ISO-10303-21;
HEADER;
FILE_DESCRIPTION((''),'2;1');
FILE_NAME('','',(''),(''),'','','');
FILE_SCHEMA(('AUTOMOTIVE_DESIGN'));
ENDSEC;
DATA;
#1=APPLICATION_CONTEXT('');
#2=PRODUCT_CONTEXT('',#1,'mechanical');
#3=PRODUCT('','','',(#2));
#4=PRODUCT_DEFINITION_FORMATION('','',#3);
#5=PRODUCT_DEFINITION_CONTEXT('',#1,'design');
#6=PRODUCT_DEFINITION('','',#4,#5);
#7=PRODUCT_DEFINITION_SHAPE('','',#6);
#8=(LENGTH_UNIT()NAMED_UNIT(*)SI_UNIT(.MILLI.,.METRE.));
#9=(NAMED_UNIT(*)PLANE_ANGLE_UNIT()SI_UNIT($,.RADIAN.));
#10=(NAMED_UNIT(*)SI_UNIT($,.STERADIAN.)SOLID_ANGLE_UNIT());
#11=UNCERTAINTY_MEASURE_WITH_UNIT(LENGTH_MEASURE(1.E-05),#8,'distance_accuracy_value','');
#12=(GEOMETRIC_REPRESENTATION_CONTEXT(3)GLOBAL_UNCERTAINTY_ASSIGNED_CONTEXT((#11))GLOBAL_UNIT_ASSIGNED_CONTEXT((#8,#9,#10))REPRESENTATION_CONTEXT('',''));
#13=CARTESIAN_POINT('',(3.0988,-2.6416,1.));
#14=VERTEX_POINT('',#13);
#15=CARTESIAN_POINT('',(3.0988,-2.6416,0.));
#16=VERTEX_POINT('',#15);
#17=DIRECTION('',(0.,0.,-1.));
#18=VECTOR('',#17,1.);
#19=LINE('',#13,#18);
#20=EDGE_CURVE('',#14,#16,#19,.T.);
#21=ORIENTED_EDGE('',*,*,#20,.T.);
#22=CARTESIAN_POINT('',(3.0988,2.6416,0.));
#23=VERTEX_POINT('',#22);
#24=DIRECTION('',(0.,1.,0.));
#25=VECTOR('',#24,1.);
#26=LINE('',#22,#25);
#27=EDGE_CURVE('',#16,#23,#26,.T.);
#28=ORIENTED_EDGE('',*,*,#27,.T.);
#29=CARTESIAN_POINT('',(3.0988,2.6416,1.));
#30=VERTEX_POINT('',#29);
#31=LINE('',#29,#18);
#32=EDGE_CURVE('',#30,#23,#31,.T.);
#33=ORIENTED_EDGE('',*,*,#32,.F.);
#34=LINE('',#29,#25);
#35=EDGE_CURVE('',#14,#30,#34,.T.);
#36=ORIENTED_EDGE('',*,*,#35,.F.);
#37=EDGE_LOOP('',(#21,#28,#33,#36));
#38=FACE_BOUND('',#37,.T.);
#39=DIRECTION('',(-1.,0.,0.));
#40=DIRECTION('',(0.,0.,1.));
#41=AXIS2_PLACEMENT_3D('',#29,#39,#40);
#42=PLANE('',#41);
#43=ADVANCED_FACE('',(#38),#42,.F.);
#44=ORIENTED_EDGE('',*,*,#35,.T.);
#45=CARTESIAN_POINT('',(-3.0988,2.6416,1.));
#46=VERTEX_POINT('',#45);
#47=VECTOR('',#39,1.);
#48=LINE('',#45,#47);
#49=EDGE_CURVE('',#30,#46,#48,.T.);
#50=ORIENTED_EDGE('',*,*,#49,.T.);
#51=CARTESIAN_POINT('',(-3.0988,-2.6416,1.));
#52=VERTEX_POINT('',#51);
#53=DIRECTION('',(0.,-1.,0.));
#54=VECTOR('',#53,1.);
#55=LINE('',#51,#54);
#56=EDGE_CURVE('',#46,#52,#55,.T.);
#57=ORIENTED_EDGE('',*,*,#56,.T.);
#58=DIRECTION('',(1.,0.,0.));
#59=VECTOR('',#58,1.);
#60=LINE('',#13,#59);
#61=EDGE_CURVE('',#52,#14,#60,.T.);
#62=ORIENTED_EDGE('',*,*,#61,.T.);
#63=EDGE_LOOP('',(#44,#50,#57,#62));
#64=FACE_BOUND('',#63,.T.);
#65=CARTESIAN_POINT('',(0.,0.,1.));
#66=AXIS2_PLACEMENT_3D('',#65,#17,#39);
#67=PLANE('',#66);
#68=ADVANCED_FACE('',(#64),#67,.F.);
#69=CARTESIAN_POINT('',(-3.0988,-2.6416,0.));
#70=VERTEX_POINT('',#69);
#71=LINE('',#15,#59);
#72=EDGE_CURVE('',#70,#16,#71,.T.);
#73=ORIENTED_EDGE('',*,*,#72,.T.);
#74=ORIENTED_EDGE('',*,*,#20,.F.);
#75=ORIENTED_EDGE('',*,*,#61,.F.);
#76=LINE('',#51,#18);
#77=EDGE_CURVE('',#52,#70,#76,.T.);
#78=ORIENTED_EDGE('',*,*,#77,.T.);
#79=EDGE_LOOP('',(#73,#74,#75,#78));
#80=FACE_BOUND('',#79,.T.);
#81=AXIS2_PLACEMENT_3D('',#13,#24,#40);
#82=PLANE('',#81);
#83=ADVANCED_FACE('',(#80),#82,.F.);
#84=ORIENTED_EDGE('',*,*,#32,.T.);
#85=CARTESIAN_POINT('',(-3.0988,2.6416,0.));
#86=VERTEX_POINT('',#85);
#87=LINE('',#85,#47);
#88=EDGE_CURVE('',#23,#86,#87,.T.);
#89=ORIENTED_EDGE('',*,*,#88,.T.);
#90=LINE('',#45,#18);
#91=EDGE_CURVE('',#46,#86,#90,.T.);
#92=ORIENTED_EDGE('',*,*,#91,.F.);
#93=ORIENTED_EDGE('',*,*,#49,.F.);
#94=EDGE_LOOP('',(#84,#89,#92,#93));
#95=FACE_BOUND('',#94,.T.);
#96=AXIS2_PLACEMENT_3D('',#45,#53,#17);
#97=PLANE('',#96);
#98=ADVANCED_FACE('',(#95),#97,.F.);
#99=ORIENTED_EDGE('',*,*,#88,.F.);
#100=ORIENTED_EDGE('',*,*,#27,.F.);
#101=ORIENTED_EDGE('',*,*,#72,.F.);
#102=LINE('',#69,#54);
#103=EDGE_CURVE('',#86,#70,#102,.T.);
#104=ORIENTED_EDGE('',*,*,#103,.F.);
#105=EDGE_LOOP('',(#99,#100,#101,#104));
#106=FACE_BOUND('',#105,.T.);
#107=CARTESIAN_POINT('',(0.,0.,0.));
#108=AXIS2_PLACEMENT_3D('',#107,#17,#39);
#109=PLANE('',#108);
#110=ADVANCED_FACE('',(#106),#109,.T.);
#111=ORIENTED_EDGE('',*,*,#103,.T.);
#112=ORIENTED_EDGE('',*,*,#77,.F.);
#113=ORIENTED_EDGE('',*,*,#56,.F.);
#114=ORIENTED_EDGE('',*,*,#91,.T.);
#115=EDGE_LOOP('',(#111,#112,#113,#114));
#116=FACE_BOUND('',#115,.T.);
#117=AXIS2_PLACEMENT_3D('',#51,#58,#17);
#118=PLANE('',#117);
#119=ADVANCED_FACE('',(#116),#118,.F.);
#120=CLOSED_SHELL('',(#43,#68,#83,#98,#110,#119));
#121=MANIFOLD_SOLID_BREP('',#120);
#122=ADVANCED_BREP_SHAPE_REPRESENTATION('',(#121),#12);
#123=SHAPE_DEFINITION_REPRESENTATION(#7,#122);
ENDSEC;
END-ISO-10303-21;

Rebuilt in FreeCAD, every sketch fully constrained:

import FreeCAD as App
import Part
import Sketcher
from FreeCAD import Vector
Q = App.Units.Quantity

doc = App.newDocument("Part")
params = doc.addObject("Spreadsheet::Sheet", "Params")
for row, (alias, value) in enumerate([
    ("sketch1_width", "0.244 in"),
    ("sketch1_height", "0.208 in"),
    ("pad1_length", "1 mm"),
], start=1):
    params.set(f"A{row}", alias)
    params.set(f"B{row}", "=" + value)
    params.setAlias(f"B{row}", alias)

body = doc.addObject("PartDesign::Body", "Body")

# Sketch on XY plane
sketch1 = doc.addObject("Sketcher::SketchObject", "Sketch")
body.addObject(sketch1)
sketch1.AttachmentSupport = (doc.XY_Plane, [""])
sketch1.MapMode = "FlatFace"
sketch1.addGeometry([
    Part.LineSegment(Vector(-3.0988, 2.6416, 0), Vector(-3.0988, -2.6416, 0)),
    Part.LineSegment(Vector(-3.0988, -2.6416, 0), Vector(3.0988, -2.6416, 0)),
    Part.LineSegment(Vector(3.0988, -2.6416, 0), Vector(3.0988, 2.6416, 0)),
    Part.LineSegment(Vector(3.0988, 2.6416, 0), Vector(-3.0988, 2.6416, 0)),
], False)
sketch1.addConstraint([
    Sketcher.Constraint("Coincident", 0, 2, 1, 1),
    Sketcher.Constraint("Coincident", 1, 2, 2, 1),
    Sketcher.Constraint("Coincident", 2, 2, 3, 1),
    Sketcher.Constraint("Coincident", 3, 2, 0, 1),
    Sketcher.Constraint("Vertical", 0),
    Sketcher.Constraint("Horizontal", 1),
    Sketcher.Constraint("Vertical", 2),
    Sketcher.Constraint("Horizontal", 3),
    Sketcher.Constraint("Symmetric", 0, 2, 2, 2, -1, 1),
    Sketcher.Constraint("DistanceX", 1, 1, 1, 2, Q("0.244 in")),
    Sketcher.Constraint("DistanceY", 0, 2, 0, 1, Q("0.208 in")),
])
sketch1.setExpression("Constraints[9]", "Params.sketch1_width")
sketch1.setExpression("Constraints[10]", "Params.sketch1_height")
pad1 = doc.addObject("PartDesign::Pad", "Pad")
body.addObject(pad1)
pad1.Profile = sketch1
pad1.setExpression("Length", "Params.pad1_length")

doc.recompute()
